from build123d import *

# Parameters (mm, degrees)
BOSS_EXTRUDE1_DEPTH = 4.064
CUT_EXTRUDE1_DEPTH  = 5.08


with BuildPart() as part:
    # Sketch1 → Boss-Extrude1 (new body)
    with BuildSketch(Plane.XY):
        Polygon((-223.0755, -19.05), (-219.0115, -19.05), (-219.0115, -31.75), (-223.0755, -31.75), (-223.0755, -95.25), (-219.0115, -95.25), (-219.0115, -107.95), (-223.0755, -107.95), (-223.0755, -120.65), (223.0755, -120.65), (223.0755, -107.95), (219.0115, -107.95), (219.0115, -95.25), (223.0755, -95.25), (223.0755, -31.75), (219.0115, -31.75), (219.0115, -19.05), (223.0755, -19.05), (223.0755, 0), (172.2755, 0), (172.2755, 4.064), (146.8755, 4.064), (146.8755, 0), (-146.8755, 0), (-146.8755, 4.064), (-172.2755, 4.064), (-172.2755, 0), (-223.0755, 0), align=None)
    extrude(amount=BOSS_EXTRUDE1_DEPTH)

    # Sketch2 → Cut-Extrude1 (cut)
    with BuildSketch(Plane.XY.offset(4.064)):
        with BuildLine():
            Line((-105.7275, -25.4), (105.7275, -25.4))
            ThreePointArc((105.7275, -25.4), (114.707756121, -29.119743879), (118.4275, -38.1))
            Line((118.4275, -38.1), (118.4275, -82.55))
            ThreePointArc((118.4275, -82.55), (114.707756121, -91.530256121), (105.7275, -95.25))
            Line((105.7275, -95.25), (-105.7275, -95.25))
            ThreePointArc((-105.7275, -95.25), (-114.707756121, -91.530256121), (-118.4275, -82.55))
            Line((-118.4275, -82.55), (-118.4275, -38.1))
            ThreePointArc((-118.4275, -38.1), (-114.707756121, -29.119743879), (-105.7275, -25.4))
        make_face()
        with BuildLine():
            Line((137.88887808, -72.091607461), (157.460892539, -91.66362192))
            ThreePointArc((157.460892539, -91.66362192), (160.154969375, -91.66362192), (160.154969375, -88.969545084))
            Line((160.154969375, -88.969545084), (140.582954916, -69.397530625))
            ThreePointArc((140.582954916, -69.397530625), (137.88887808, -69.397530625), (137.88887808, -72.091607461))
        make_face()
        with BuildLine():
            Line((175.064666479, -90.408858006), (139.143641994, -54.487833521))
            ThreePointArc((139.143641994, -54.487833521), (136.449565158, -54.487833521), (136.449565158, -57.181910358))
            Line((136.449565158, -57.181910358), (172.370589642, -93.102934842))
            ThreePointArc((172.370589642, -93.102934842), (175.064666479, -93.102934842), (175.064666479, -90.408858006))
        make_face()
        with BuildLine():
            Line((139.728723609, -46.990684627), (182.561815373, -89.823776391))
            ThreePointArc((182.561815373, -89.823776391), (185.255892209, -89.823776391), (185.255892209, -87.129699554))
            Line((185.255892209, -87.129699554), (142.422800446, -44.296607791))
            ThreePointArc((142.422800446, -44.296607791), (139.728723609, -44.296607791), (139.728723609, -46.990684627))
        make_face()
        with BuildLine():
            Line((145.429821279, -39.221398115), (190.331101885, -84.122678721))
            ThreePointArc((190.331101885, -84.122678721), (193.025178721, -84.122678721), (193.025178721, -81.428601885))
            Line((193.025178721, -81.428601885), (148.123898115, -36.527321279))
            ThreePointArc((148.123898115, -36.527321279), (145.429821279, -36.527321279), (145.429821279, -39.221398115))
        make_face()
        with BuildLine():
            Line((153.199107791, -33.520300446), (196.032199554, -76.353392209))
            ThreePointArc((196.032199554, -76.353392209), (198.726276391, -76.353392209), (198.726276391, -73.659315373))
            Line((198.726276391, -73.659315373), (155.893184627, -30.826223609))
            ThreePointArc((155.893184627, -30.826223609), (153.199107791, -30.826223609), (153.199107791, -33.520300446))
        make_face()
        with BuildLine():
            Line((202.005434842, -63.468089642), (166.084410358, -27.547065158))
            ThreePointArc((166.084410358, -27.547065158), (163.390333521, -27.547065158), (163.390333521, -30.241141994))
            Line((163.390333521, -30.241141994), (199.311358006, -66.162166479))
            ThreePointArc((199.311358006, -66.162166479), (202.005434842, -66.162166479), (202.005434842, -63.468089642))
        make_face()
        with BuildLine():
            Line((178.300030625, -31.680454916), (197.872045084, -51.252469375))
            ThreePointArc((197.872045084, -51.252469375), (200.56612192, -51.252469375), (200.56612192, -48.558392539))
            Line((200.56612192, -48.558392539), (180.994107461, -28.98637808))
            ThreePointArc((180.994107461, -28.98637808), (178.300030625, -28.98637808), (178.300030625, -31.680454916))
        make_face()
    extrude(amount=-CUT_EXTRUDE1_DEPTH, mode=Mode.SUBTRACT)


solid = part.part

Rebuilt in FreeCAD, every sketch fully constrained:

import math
import FreeCAD as App
import Part
import Sketcher
from FreeCAD import Vector
Q = App.Units.Quantity

doc = App.newDocument("Part")
params = doc.addObject("Spreadsheet::Sheet", "Params")
for row, (alias, value) in enumerate([
    ("sketch1_width", "2 in"),
    ("sketch1_width2", "1 in"),
    ("sketch1_height", "0.5 in"),
    ("sketch1_height2", "2.5 in"),
    ("sketch1_width3", "0.16 in"),
    ("pad1_length", "0.16 in"),
    ("sketch2_radius", "0.5 in"),
    ("sketch2_length", "2 in"),
    ("sketch2_radius2", "0.075 in"),
    ("sketch2_length2", "2.5 in"),
    ("sketch2_height", "1.75 in"),
    ("pocket1_length", "0.2 in"),
], start=1):
    params.set(f"A{row}", alias)
    params.set(f"B{row}", "=" + value)
    params.setAlias(f"B{row}", alias)

body = doc.addObject("PartDesign::Body", "Body")

# Sketch on XY plane
sketch1 = body.newObject("Sketcher::SketchObject", "Sketch")
sketch1.AttachmentSupport = (doc.getObject("XY_Plane"), [""])
sketch1.MapMode = "FlatFace"
sketch1.addGeometry([
    Part.LineSegment(Vector(-223.1, -19.1, 0), Vector(-219, -19.1, 0)),  # 0
    Part.LineSegment(Vector(-219, -19.1, 0), Vector(-219, -31.8, 0)),  # 1
    Part.LineSegment(Vector(-219, -31.8, 0), Vector(-223.1, -31.8, 0)),  # 2
    Part.LineSegment(Vector(-223.1, -31.8, 0), Vector(-223.1, -95.2, 0)),  # 3
    Part.LineSegment(Vector(-223.1, -95.2, 0), Vector(-219, -95.2, 0)),  # 4
    Part.LineSegment(Vector(-219, -95.2, 0), Vector(-219, -108, 0)),  # 5
    Part.LineSegment(Vector(-219, -108, 0), Vector(-223.1, -108, 0)),  # 6
    Part.LineSegment(Vector(-223.1, -108, 0), Vector(-223.1, -120.7, 0)),  # 7
    Part.LineSegment(Vector(-223.1, -120.7, 0), Vector(223.1, -120.7, 0)),  # 8
    Part.LineSegment(Vector(223.1, -120.7, 0), Vector(223.1, -108, 0)),  # 9
    Part.LineSegment(Vector(223.1, -108, 0), Vector(219, -108, 0)),  # 10
    Part.LineSegment(Vector(219, -108, 0), Vector(219, -95.2, 0)),  # 11
    Part.LineSegment(Vector(219, -95.2, 0), Vector(223.1, -95.2, 0)),  # 12
    Part.LineSegment(Vector(223.1, -95.2, 0), Vector(223.1, -31.8, 0)),  # 13
    Part.LineSegment(Vector(223.1, -31.8, 0), Vector(219, -31.8, 0)),  # 14
    Part.LineSegment(Vector(219, -31.8, 0), Vector(219, -19.1, 0)),  # 15
    Part.LineSegment(Vector(219, -19.1, 0), Vector(223.1, -19.1, 0)),  # 16
    Part.LineSegment(Vector(223.1, -19.1, 0), Vector(223.1, 0, 0)),  # 17
    Part.LineSegment(Vector(223.1, 0, 0), Vector(172.3, 0, 0)),  # 18
    Part.LineSegment(Vector(172.3, 0, 0), Vector(172.3, 4.1, 0)),  # 19
    Part.LineSegment(Vector(172.3, 4.1, 0), Vector(146.9, 4.1, 0)),  # 20
    Part.LineSegment(Vector(146.9, 4.1, 0), Vector(146.9, 0, 0)),  # 21
    Part.LineSegment(Vector(146.9, 0, 0), Vector(-146.9, 0, 0)),  # 22
    Part.LineSegment(Vector(-146.9, 0, 0), Vector(-146.9, 4.1, 0)),  # 23
    Part.LineSegment(Vector(-146.9, 4.1, 0), Vector(-172.3, 4.1, 0)),  # 24
    Part.LineSegment(Vector(-172.3, 4.1, 0), Vector(-172.3, 0, 0)),  # 25
    Part.LineSegment(Vector(-172.3, 0, 0), Vector(-223.1, 0, 0)),  # 26
    Part.LineSegment(Vector(-223.1, 0, 0), Vector(-223.1, -19.1, 0)),  # 27
], False)
sketch1.addConstraint([
    Sketcher.Constraint("Coincident", 0, 2, 1, 1),
    Sketcher.Constraint("Coincident", 1, 2, 2, 1),
    Sketcher.Constraint("Coincident", 2, 2, 3, 1),
    Sketcher.Constraint("Coincident", 3, 2, 4, 1),
    Sketcher.Constraint("Coincident", 4, 2, 5, 1),
    Sketcher.Constraint("Coincident", 5, 2, 6, 1),
    Sketcher.Constraint("Coincident", 6, 2, 7, 1),
    Sketcher.Constraint("Coincident", 7, 2, 8, 1),
    Sketcher.Constraint("Coincident", 8, 2, 9, 1),
    Sketcher.Constraint("Coincident", 9, 2, 10, 1),
    Sketcher.Constraint("Coincident", 10, 2, 11, 1),
    Sketcher.Constraint("Coincident", 11, 2, 12, 1),
    Sketcher.Constraint("Coincident", 12, 2, 13, 1),
    Sketcher.Constraint("Coincident", 13, 2, 14, 1),
    Sketcher.Constraint("Coincident", 14, 2, 15, 1),
    Sketcher.Constraint("Coincident", 15, 2, 16, 1),
    Sketcher.Constraint("Coincident", 16, 2, 17, 1),
    Sketcher.Constraint("Coincident", 17, 2, 18, 1),
    Sketcher.Constraint("Coincident", 18, 2, 19, 1),
    Sketcher.Constraint("Coincident", 19, 2, 20, 1),
    Sketcher.Constraint("Coincident", 20, 2, 21, 1),
    Sketcher.Constraint("Coincident", 21, 2, 22, 1),
    Sketcher.Constraint("Coincident", 22, 2, 23, 1),
    Sketcher.Constraint("Coincident", 23, 2, 24, 1),
    Sketcher.Constraint("Coincident", 24, 2, 25, 1),
    Sketcher.Constraint("Coincident", 25, 2, 26, 1),
    Sketcher.Constraint("Coincident", 26, 2, 27, 1),
    Sketcher.Constraint("Coincident", 27, 2, 0, 1),
    Sketcher.Constraint("Horizontal", 0),
    Sketcher.Constraint("Vertical", 1),
    Sketcher.Constraint("Horizontal", 2),
    Sketcher.Constraint("Vertical", 3),
    Sketcher.Constraint("Horizontal", 4),
    Sketcher.Constraint("Vertical", 5),
    Sketcher.Constraint("Horizontal", 6),
    Sketcher.Constraint("Vertical", 7),
    Sketcher.Constraint("Horizontal", 8),
    Sketcher.Constraint("Vertical", 9),
    Sketcher.Constraint("Horizontal", 10),
    Sketcher.Constraint("Vertical", 11),
    Sketcher.Constraint("Horizontal", 12),
    Sketcher.Constraint("Vertical", 13),
    Sketcher.Constraint("Horizontal", 14),
    Sketcher.Constraint("Vertical", 15),
    Sketcher.Constraint("Horizontal", 16),
    Sketcher.Constraint("Vertical", 17),
    Sketcher.Constraint("Horizontal", 18),
    Sketcher.Constraint("Vertical", 19),
    Sketcher.Constraint("Horizontal", 20),
    Sketcher.Constraint("Vertical", 21),
    Sketcher.Constraint("Horizontal", 22),
    Sketcher.Constraint("Vertical", 23),
    Sketcher.Constraint("Horizontal", 24),
    Sketcher.Constraint("Vertical", 25),
    Sketcher.Constraint("Horizontal", 26),
    Sketcher.Constraint("Vertical", 27),
    Sketcher.Constraint("Symmetric", 21, 2, 22, 2, -1, 1),
    Sketcher.Constraint("Symmetric", 18, 2, 25, 2, -1, 1),
    Sketcher.Constraint("Symmetric", 6, 2, 9, 2, -2),
    Sketcher.Constraint("Symmetric", 4, 2, 11, 2, -2),
    Sketcher.Constraint("Symmetric", 2, 2, 13, 2, -2),
    Sketcher.Constraint("Symmetric", 0, 2, 15, 2, -2),
    Sketcher.Constraint("Symmetric", 17, 2, 26, 2, -2),
    Sketcher.Constraint("Horizontal", 20, 2, 23, 2),
    Sketcher.Constraint("Vertical", 1, 2, 4, 2),
    Sketcher.Constraint("Vertical", 3, 2, 6, 2),
    Sketcher.Constraint("Vertical", 13, 2, 16, 2),
    Sketcher.Constraint("Equal", 1, 5),
    Sketcher.Constraint("Equal", 5, 7),
    Sketcher.Constraint("Equal", 16, 19),
    Sketcher.Constraint("DistanceX", 18, 2, 18, 1, Q("2 in")),
    Sketcher.Constraint("DistanceX", 20, 2, 20, 1, Q("1 in")),
    Sketcher.Constraint("DistanceY", 1, 2, 1, 1, Q("0.5 in")),
    Sketcher.Constraint("DistanceY", 3, 2, 3, 1, Q("2.5 in")),
    Sketcher.Constraint("DistanceX", 0, 1, 0, 2, Q("0.16 in")),
    Sketcher.Constraint("DistanceY", 17, 1, 17, 2, Q("0.75 in")),
    Sketcher.Constraint("DistanceX", 8, 1, 8, 2, Q("17.565 in")),
])
sketch1.setExpression("Constraints[70]", "Params.sketch1_width")
sketch1.setExpression("Constraints[71]", "Params.sketch1_width2")
sketch1.setExpression("Constraints[72]", "Params.sketch1_height")
sketch1.setExpression("Constraints[73]", "Params.sketch1_height2")
sketch1.setExpression("Constraints[74]", "Params.sketch1_width3")
pad1 = body.newObject("PartDesign::Pad", "Pad")
pad1.Profile = sketch1
pad1.setExpression("Length", "Params.pad1_length")

# Sketch on XY plane
sketch2 = body.newObject("Sketcher::SketchObject", "Sketch001")
sketch2.AttachmentSupport = (doc.getObject("XY_Plane"), [""])
sketch2.MapMode = "FlatFace"
sketch2.AttachmentOffset = App.Placement(Vector(0, 0, 0.16 * 25.4), App.Rotation())
sketch2.addGeometry([
    Part.LineSegment(Vector(105.7, -25.4, 0), Vector(-105.7, -25.4, 0)),  # 0
    Part.ArcOfCircle(Part.Circle(Vector(-105.7, -38.1, 0), Vector(0, 0, 1), 12.7), math.radians(90), math.radians(180)),  # 1
    Part.LineSegment(Vector(-118.4, -38.1, 0), Vector(-118.4, -82.5, 0)),  # 2
    Part.ArcOfCircle(Part.Circle(Vector(-105.7, -82.5, 0), Vector(0, 0, 1), 12.7), math.radians(180), math.radians(270)),  # 3
    Part.LineSegment(Vector(-105.7, -95.2, 0), Vector(105.7, -95.2, 0)),  # 4
    Part.ArcOfCircle(Part.Circle(Vector(105.7, -82.5, 0), Vector(0, 0, 1), 12.7), math.radians(-90), math.radians(0)),  # 5
    Part.LineSegment(Vector(118.4, -82.5, 0), Vector(118.4, -38.1, 0)),  # 6
    Part.ArcOfCircle(Part.Circle(Vector(105.7, -38.1, 0), Vector(0, 0, 1), 12.7), math.radians(0), math.radians(90)),  # 7
    Part.LineSegment(Vector(137.9, -72.1, 0), Vector(157.5, -91.7, 0)),  # 8
    Part.ArcOfCircle(Part.Circle(Vector(158.8, -90.3, 0), Vector(0, 0, 1), 1.9), math.radians(-135), math.radians(45)),  # 9
    Part.LineSegment(Vector(160.2, -89, 0), Vector(140.6, -69.4, 0)),  # 10
    Part.ArcOfCircle(Part.Circle(Vector(139.2, -70.7, 0), Vector(0, 0, 1), 1.9), math.radians(45), math.radians(225)),  # 11
    Part.LineSegment(Vector(175.1, -90.4, 0), Vector(139.1, -54.5, 0)),  # 12
    Part.ArcOfCircle(Part.Circle(Vector(137.8, -55.8, 0), Vector(0, 0, 1), 1.9), math.radians(45), math.radians(225)),  # 13
    Part.LineSegment(Vector(136.4, -57.2, 0), Vector(172.4, -93.1, 0)),  # 14
    Part.ArcOfCircle(Part.Circle(Vector(173.7, -91.8, 0), Vector(0, 0, 1), 1.9), math.radians(-135), math.radians(45)),  # 15
    Part.LineSegment(Vector(139.7, -47, 0), Vector(182.6, -89.8, 0)),  # 16
    Part.ArcOfCircle(Part.Circle(Vector(183.9, -88.5, 0), Vector(0, 0, 1), 1.9), math.radians(-135), math.radians(45)),  # 17
    Part.LineSegment(Vector(185.3, -87.1, 0), Vector(142.4, -44.3, 0)),  # 18
    Part.ArcOfCircle(Part.Circle(Vector(141.1, -45.6, 0), Vector(0, 0, 1), 1.9), math.radians(45), math.radians(225)),  # 19
    Part.LineSegment(Vector(145.4, -39.2, 0), Vector(190.3, -84.1, 0)),  # 20
    Part.ArcOfCircle(Part.Circle(Vector(191.7, -82.8, 0), Vector(0, 0, 1), 1.9), math.radians(-135), math.radians(45)),  # 21
    Part.LineSegment(Vector(193, -81.4, 0), Vector(148.1, -36.5, 0)),  # 22
    Part.ArcOfCircle(Part.Circle(Vector(146.8, -37.9, 0), Vector(0, 0, 1), 1.9), math.radians(45), math.radians(225)),  # 23
    Part.LineSegment(Vector(153.2, -33.5, 0), Vector(196, -76.4, 0)),  # 24
    Part.ArcOfCircle(Part.Circle(Vector(197.4, -75, 0), Vector(0, 0, 1), 1.9), math.radians(-135), math.radians(45)),  # 25
    Part.LineSegment(Vector(198.7, -73.7, 0), Vector(155.9, -30.8, 0)),  # 26
    Part.ArcOfCircle(Part.Circle(Vector(154.5, -32.2, 0), Vector(0, 0, 1), 1.9), math.radians(45), math.radians(225)),  # 27
    Part.LineSegment(Vector(202, -63.5, 0), Vector(166.1, -27.5, 0)),  # 28
    Part.ArcOfCircle(Part.Circle(Vector(164.7, -28.9, 0), Vector(0, 0, 1), 1.9), math.radians(45), math.radians(225)),  # 29
    Part.LineSegment(Vector(163.4, -30.2, 0), Vector(199.3, -66.2, 0)),  # 30
    Part.ArcOfCircle(Part.Circle(Vector(200.7, -64.8, 0), Vector(0, 0, 1), 1.9), math.radians(-135), math.radians(45)),  # 31
    Part.LineSegment(Vector(178.3, -31.7, 0), Vector(197.9, -51.3, 0)),  # 32
    Part.ArcOfCircle(Part.Circle(Vector(199.2, -49.9, 0), Vector(0, 0, 1), 1.9), math.radians(-135), math.radians(45)),  # 33
    Part.LineSegment(Vector(200.6, -48.6, 0), Vector(181, -29, 0)),  # 34
    Part.ArcOfCircle(Part.Circle(Vector(179.6, -30.3, 0), Vector(0, 0, 1), 1.9), math.radians(45), math.radians(225)),  # 35
], False)
sketch2.addConstraint([
    Sketcher.Constraint("Tangent", 0, 2, 1, 1),
    Sketcher.Constraint("Tangent", 1, 2, 2, 1),
    Sketcher.Constraint("Tangent", 2, 2, 3, 1),
    Sketcher.Constraint("Tangent", 3, 2, 4, 1),
    Sketcher.Constraint("Tangent", 4, 2, 5, 1),
    Sketcher.Constraint("Tangent", 5, 2, 6, 1),
    Sketcher.Constraint("Tangent", 6, 2, 7, 1),
    Sketcher.Constraint("Tangent", 7, 2, 0, 1),
    Sketcher.Constraint("Tangent", 8, 2, 9, 1),
    Sketcher.Constraint("Tangent", 9, 2, 10, 1),
    Sketcher.Constraint("Tangent", 10, 2, 11, 1),
    Sketcher.Constraint("Tangent", 11, 2, 8, 1),
    Sketcher.Constraint("Tangent", 12, 2, 13, 1),
    Sketcher.Constraint("Tangent", 13, 2, 14, 1),
    Sketcher.Constraint("Tangent", 14, 2, 15, 1),
    Sketcher.Constraint("Tangent", 15, 2, 12, 1),
    Sketcher.Constraint("Tangent", 16, 2, 17, 1),
    Sketcher.Constraint("Tangent", 17, 2, 18, 1),
    Sketcher.Constraint("Tangent", 18, 2, 19, 1),
    Sketcher.Constraint("Tangent", 19, 2, 16, 1),
    Sketcher.Constraint("Tangent", 20, 2, 21, 1),
    Sketcher.Constraint("Tangent", 21, 2, 22, 1),
    Sketcher.Constraint("Tangent", 22, 2, 23, 1),
    Sketcher.Constraint("Tangent", 23, 2, 20, 1),
    Sketcher.Constraint("Tangent", 24, 2, 25, 1),
    Sketcher.Constraint("Tangent", 25, 2, 26, 1),
    Sketcher.Constraint("Tangent", 26, 2, 27, 1),
    Sketcher.Constraint("Tangent", 27, 2, 24, 1),
    Sketcher.Constraint("Tangent", 28, 2, 29, 1),
    Sketcher.Constraint("Tangent", 29, 2, 30, 1),
    Sketcher.Constraint("Tangent", 30, 2, 31, 1),
    Sketcher.Constraint("Tangent", 31, 2, 28, 1),
    Sketcher.Constraint("Tangent", 32, 2, 33, 1),
    Sketcher.Constraint("Tangent", 33, 2, 34, 1),
    Sketcher.Constraint("Tangent", 34, 2, 35, 1),
    Sketcher.Constraint("Tangent", 35, 2, 32, 1),
    Sketcher.Constraint("Horizontal", 0),
    Sketcher.Constraint("Vertical", 2),
    Sketcher.Constraint("Horizontal", 4),
    Sketcher.Constraint("Vertical", 6),
    Sketcher.Constraint("Equal", 1, 3),
    Sketcher.Constraint("Equal", 3, 5),
    Sketcher.Constraint("Equal", 5, 7),
    Sketcher.Constraint("Equal", 9, 11),
    Sketcher.Constraint("Equal", 11, 13),
    Sketcher.Constraint("Equal", 13, 15),
    Sketcher.Constraint("Equal", 15, 17),
    Sketcher.Constraint("Equal", 17, 19),
    Sketcher.Constraint("Equal", 19, 21),
    Sketcher.Constraint("Equal", 21, 23),
    Sketcher.Constraint("Equal", 23, 25),
    Sketcher.Constraint("Equal", 25, 27),
    Sketcher.Constraint("Equal", 27, 29),
    Sketcher.Constraint("Equal", 29, 31),
    Sketcher.Constraint("Equal", 31, 33),
    Sketcher.Constraint("Equal", 33, 35),
    Sketcher.Constraint("Parallel", 10, 12),
    Sketcher.Constraint("Parallel", 14, 16),
    Sketcher.Constraint("Parallel", 18, 20),
    Sketcher.Constraint("Parallel", 22, 24),
    Sketcher.Constraint("Parallel", 26, 28),
    Sketcher.Constraint("Parallel", 30, 32),
    Sketcher.Constraint("Equal", 18, 24),
    Sketcher.Constraint("Equal", 14, 28),
    Sketcher.Constraint("Equal", 10, 32),
    Sketcher.Constraint("Radius", 1, Q("0.5 in")),
    Sketcher.Constraint("Distance", 12, Q("2 in")),
    Sketcher.Constraint("DistanceY", 0, 2, -1, 1, Q("1 in")),
    Sketcher.Constraint("Angle", 8, Q("-45 deg")),
    Sketcher.Constraint("Radius", 9, Q("0.075 in")),
    Sketcher.Constraint("Distance", 20, Q("2.5 in")),
    Sketcher.Constraint("DistanceY", 2, 2, 2, 1, Q("1.75 in")),
    Sketcher.Constraint("DistanceX", 0, 2, 0, 1, Q("8.325 in")),
    Sketcher.Constraint("DistanceX", 1, 3, -1, 1, Q("4.1625 in")),
    Sketcher.Constraint("DistanceX", 11, 2, 12, 2, Q("0.0494002 in")),
    Sketcher.Constraint("DistanceX", 30, 2, 33, 2, Q("0.0494002 in")),
    Sketcher.Constraint("DistanceY", 29, 2, 34, 2, Q("0.0494002 in")),
    Sketcher.Constraint("DistanceY", 17, 2, -1, 1, Q("87.1297 mm")),
    Sketcher.Constraint("DistanceX", -1, 1, 18, 2, Q("142.4228 mm")),
    Sketcher.Constraint("DistanceX", -1, 1, 20, 2, Q("190.331102 mm")),
    Sketcher.Constraint("DistanceY", 21, 2, -1, 1, Q("81.428602 mm")),
    Sketcher.Constraint("DistanceX", -1, 1, 24, 2, Q("196.0322 mm")),
    Sketcher.Constraint("DistanceY", 27, 2, -1, 1, Q("33.5203 mm")),
    Sketcher.Constraint("Distance", 8, Q("27.679008 mm")),
    Sketcher.Constraint("Distance", 16, Q("60.575139 mm")),
    Sketcher.Constraint("DistanceX", -1, 1, 9, 3, Q("158.807931 mm")),
    Sketcher.Constraint("DistanceY", 11, 3, -1, 1, Q("70.744569 mm")),
    Sketcher.Constraint("DistanceY", 13, 3, -1, 1, Q("55.834872 mm")),
    Sketcher.Constraint("DistanceX", -1, 1, 29, 3, Q("164.737372 mm")),
    Sketcher.Constraint("DistanceY", 31, 3, -1, 1, Q("64.815128 mm")),
])
sketch2.setExpression("Constraints[65]", "Params.sketch2_radius")
sketch2.setExpression("Constraints[66]", "Params.sketch2_length")
sketch2.setExpression("Constraints[69]", "Params.sketch2_radius2")
sketch2.setExpression("Constraints[70]", "Params.sketch2_length2")
sketch2.setExpression("Constraints[71]", "Params.sketch2_height")
pocket1 = body.newObject("PartDesign::Pocket", "Pocket")
pocket1.Profile = sketch2
pocket1.setExpression("Length", "Params.pocket1_length")

doc.recompute()
